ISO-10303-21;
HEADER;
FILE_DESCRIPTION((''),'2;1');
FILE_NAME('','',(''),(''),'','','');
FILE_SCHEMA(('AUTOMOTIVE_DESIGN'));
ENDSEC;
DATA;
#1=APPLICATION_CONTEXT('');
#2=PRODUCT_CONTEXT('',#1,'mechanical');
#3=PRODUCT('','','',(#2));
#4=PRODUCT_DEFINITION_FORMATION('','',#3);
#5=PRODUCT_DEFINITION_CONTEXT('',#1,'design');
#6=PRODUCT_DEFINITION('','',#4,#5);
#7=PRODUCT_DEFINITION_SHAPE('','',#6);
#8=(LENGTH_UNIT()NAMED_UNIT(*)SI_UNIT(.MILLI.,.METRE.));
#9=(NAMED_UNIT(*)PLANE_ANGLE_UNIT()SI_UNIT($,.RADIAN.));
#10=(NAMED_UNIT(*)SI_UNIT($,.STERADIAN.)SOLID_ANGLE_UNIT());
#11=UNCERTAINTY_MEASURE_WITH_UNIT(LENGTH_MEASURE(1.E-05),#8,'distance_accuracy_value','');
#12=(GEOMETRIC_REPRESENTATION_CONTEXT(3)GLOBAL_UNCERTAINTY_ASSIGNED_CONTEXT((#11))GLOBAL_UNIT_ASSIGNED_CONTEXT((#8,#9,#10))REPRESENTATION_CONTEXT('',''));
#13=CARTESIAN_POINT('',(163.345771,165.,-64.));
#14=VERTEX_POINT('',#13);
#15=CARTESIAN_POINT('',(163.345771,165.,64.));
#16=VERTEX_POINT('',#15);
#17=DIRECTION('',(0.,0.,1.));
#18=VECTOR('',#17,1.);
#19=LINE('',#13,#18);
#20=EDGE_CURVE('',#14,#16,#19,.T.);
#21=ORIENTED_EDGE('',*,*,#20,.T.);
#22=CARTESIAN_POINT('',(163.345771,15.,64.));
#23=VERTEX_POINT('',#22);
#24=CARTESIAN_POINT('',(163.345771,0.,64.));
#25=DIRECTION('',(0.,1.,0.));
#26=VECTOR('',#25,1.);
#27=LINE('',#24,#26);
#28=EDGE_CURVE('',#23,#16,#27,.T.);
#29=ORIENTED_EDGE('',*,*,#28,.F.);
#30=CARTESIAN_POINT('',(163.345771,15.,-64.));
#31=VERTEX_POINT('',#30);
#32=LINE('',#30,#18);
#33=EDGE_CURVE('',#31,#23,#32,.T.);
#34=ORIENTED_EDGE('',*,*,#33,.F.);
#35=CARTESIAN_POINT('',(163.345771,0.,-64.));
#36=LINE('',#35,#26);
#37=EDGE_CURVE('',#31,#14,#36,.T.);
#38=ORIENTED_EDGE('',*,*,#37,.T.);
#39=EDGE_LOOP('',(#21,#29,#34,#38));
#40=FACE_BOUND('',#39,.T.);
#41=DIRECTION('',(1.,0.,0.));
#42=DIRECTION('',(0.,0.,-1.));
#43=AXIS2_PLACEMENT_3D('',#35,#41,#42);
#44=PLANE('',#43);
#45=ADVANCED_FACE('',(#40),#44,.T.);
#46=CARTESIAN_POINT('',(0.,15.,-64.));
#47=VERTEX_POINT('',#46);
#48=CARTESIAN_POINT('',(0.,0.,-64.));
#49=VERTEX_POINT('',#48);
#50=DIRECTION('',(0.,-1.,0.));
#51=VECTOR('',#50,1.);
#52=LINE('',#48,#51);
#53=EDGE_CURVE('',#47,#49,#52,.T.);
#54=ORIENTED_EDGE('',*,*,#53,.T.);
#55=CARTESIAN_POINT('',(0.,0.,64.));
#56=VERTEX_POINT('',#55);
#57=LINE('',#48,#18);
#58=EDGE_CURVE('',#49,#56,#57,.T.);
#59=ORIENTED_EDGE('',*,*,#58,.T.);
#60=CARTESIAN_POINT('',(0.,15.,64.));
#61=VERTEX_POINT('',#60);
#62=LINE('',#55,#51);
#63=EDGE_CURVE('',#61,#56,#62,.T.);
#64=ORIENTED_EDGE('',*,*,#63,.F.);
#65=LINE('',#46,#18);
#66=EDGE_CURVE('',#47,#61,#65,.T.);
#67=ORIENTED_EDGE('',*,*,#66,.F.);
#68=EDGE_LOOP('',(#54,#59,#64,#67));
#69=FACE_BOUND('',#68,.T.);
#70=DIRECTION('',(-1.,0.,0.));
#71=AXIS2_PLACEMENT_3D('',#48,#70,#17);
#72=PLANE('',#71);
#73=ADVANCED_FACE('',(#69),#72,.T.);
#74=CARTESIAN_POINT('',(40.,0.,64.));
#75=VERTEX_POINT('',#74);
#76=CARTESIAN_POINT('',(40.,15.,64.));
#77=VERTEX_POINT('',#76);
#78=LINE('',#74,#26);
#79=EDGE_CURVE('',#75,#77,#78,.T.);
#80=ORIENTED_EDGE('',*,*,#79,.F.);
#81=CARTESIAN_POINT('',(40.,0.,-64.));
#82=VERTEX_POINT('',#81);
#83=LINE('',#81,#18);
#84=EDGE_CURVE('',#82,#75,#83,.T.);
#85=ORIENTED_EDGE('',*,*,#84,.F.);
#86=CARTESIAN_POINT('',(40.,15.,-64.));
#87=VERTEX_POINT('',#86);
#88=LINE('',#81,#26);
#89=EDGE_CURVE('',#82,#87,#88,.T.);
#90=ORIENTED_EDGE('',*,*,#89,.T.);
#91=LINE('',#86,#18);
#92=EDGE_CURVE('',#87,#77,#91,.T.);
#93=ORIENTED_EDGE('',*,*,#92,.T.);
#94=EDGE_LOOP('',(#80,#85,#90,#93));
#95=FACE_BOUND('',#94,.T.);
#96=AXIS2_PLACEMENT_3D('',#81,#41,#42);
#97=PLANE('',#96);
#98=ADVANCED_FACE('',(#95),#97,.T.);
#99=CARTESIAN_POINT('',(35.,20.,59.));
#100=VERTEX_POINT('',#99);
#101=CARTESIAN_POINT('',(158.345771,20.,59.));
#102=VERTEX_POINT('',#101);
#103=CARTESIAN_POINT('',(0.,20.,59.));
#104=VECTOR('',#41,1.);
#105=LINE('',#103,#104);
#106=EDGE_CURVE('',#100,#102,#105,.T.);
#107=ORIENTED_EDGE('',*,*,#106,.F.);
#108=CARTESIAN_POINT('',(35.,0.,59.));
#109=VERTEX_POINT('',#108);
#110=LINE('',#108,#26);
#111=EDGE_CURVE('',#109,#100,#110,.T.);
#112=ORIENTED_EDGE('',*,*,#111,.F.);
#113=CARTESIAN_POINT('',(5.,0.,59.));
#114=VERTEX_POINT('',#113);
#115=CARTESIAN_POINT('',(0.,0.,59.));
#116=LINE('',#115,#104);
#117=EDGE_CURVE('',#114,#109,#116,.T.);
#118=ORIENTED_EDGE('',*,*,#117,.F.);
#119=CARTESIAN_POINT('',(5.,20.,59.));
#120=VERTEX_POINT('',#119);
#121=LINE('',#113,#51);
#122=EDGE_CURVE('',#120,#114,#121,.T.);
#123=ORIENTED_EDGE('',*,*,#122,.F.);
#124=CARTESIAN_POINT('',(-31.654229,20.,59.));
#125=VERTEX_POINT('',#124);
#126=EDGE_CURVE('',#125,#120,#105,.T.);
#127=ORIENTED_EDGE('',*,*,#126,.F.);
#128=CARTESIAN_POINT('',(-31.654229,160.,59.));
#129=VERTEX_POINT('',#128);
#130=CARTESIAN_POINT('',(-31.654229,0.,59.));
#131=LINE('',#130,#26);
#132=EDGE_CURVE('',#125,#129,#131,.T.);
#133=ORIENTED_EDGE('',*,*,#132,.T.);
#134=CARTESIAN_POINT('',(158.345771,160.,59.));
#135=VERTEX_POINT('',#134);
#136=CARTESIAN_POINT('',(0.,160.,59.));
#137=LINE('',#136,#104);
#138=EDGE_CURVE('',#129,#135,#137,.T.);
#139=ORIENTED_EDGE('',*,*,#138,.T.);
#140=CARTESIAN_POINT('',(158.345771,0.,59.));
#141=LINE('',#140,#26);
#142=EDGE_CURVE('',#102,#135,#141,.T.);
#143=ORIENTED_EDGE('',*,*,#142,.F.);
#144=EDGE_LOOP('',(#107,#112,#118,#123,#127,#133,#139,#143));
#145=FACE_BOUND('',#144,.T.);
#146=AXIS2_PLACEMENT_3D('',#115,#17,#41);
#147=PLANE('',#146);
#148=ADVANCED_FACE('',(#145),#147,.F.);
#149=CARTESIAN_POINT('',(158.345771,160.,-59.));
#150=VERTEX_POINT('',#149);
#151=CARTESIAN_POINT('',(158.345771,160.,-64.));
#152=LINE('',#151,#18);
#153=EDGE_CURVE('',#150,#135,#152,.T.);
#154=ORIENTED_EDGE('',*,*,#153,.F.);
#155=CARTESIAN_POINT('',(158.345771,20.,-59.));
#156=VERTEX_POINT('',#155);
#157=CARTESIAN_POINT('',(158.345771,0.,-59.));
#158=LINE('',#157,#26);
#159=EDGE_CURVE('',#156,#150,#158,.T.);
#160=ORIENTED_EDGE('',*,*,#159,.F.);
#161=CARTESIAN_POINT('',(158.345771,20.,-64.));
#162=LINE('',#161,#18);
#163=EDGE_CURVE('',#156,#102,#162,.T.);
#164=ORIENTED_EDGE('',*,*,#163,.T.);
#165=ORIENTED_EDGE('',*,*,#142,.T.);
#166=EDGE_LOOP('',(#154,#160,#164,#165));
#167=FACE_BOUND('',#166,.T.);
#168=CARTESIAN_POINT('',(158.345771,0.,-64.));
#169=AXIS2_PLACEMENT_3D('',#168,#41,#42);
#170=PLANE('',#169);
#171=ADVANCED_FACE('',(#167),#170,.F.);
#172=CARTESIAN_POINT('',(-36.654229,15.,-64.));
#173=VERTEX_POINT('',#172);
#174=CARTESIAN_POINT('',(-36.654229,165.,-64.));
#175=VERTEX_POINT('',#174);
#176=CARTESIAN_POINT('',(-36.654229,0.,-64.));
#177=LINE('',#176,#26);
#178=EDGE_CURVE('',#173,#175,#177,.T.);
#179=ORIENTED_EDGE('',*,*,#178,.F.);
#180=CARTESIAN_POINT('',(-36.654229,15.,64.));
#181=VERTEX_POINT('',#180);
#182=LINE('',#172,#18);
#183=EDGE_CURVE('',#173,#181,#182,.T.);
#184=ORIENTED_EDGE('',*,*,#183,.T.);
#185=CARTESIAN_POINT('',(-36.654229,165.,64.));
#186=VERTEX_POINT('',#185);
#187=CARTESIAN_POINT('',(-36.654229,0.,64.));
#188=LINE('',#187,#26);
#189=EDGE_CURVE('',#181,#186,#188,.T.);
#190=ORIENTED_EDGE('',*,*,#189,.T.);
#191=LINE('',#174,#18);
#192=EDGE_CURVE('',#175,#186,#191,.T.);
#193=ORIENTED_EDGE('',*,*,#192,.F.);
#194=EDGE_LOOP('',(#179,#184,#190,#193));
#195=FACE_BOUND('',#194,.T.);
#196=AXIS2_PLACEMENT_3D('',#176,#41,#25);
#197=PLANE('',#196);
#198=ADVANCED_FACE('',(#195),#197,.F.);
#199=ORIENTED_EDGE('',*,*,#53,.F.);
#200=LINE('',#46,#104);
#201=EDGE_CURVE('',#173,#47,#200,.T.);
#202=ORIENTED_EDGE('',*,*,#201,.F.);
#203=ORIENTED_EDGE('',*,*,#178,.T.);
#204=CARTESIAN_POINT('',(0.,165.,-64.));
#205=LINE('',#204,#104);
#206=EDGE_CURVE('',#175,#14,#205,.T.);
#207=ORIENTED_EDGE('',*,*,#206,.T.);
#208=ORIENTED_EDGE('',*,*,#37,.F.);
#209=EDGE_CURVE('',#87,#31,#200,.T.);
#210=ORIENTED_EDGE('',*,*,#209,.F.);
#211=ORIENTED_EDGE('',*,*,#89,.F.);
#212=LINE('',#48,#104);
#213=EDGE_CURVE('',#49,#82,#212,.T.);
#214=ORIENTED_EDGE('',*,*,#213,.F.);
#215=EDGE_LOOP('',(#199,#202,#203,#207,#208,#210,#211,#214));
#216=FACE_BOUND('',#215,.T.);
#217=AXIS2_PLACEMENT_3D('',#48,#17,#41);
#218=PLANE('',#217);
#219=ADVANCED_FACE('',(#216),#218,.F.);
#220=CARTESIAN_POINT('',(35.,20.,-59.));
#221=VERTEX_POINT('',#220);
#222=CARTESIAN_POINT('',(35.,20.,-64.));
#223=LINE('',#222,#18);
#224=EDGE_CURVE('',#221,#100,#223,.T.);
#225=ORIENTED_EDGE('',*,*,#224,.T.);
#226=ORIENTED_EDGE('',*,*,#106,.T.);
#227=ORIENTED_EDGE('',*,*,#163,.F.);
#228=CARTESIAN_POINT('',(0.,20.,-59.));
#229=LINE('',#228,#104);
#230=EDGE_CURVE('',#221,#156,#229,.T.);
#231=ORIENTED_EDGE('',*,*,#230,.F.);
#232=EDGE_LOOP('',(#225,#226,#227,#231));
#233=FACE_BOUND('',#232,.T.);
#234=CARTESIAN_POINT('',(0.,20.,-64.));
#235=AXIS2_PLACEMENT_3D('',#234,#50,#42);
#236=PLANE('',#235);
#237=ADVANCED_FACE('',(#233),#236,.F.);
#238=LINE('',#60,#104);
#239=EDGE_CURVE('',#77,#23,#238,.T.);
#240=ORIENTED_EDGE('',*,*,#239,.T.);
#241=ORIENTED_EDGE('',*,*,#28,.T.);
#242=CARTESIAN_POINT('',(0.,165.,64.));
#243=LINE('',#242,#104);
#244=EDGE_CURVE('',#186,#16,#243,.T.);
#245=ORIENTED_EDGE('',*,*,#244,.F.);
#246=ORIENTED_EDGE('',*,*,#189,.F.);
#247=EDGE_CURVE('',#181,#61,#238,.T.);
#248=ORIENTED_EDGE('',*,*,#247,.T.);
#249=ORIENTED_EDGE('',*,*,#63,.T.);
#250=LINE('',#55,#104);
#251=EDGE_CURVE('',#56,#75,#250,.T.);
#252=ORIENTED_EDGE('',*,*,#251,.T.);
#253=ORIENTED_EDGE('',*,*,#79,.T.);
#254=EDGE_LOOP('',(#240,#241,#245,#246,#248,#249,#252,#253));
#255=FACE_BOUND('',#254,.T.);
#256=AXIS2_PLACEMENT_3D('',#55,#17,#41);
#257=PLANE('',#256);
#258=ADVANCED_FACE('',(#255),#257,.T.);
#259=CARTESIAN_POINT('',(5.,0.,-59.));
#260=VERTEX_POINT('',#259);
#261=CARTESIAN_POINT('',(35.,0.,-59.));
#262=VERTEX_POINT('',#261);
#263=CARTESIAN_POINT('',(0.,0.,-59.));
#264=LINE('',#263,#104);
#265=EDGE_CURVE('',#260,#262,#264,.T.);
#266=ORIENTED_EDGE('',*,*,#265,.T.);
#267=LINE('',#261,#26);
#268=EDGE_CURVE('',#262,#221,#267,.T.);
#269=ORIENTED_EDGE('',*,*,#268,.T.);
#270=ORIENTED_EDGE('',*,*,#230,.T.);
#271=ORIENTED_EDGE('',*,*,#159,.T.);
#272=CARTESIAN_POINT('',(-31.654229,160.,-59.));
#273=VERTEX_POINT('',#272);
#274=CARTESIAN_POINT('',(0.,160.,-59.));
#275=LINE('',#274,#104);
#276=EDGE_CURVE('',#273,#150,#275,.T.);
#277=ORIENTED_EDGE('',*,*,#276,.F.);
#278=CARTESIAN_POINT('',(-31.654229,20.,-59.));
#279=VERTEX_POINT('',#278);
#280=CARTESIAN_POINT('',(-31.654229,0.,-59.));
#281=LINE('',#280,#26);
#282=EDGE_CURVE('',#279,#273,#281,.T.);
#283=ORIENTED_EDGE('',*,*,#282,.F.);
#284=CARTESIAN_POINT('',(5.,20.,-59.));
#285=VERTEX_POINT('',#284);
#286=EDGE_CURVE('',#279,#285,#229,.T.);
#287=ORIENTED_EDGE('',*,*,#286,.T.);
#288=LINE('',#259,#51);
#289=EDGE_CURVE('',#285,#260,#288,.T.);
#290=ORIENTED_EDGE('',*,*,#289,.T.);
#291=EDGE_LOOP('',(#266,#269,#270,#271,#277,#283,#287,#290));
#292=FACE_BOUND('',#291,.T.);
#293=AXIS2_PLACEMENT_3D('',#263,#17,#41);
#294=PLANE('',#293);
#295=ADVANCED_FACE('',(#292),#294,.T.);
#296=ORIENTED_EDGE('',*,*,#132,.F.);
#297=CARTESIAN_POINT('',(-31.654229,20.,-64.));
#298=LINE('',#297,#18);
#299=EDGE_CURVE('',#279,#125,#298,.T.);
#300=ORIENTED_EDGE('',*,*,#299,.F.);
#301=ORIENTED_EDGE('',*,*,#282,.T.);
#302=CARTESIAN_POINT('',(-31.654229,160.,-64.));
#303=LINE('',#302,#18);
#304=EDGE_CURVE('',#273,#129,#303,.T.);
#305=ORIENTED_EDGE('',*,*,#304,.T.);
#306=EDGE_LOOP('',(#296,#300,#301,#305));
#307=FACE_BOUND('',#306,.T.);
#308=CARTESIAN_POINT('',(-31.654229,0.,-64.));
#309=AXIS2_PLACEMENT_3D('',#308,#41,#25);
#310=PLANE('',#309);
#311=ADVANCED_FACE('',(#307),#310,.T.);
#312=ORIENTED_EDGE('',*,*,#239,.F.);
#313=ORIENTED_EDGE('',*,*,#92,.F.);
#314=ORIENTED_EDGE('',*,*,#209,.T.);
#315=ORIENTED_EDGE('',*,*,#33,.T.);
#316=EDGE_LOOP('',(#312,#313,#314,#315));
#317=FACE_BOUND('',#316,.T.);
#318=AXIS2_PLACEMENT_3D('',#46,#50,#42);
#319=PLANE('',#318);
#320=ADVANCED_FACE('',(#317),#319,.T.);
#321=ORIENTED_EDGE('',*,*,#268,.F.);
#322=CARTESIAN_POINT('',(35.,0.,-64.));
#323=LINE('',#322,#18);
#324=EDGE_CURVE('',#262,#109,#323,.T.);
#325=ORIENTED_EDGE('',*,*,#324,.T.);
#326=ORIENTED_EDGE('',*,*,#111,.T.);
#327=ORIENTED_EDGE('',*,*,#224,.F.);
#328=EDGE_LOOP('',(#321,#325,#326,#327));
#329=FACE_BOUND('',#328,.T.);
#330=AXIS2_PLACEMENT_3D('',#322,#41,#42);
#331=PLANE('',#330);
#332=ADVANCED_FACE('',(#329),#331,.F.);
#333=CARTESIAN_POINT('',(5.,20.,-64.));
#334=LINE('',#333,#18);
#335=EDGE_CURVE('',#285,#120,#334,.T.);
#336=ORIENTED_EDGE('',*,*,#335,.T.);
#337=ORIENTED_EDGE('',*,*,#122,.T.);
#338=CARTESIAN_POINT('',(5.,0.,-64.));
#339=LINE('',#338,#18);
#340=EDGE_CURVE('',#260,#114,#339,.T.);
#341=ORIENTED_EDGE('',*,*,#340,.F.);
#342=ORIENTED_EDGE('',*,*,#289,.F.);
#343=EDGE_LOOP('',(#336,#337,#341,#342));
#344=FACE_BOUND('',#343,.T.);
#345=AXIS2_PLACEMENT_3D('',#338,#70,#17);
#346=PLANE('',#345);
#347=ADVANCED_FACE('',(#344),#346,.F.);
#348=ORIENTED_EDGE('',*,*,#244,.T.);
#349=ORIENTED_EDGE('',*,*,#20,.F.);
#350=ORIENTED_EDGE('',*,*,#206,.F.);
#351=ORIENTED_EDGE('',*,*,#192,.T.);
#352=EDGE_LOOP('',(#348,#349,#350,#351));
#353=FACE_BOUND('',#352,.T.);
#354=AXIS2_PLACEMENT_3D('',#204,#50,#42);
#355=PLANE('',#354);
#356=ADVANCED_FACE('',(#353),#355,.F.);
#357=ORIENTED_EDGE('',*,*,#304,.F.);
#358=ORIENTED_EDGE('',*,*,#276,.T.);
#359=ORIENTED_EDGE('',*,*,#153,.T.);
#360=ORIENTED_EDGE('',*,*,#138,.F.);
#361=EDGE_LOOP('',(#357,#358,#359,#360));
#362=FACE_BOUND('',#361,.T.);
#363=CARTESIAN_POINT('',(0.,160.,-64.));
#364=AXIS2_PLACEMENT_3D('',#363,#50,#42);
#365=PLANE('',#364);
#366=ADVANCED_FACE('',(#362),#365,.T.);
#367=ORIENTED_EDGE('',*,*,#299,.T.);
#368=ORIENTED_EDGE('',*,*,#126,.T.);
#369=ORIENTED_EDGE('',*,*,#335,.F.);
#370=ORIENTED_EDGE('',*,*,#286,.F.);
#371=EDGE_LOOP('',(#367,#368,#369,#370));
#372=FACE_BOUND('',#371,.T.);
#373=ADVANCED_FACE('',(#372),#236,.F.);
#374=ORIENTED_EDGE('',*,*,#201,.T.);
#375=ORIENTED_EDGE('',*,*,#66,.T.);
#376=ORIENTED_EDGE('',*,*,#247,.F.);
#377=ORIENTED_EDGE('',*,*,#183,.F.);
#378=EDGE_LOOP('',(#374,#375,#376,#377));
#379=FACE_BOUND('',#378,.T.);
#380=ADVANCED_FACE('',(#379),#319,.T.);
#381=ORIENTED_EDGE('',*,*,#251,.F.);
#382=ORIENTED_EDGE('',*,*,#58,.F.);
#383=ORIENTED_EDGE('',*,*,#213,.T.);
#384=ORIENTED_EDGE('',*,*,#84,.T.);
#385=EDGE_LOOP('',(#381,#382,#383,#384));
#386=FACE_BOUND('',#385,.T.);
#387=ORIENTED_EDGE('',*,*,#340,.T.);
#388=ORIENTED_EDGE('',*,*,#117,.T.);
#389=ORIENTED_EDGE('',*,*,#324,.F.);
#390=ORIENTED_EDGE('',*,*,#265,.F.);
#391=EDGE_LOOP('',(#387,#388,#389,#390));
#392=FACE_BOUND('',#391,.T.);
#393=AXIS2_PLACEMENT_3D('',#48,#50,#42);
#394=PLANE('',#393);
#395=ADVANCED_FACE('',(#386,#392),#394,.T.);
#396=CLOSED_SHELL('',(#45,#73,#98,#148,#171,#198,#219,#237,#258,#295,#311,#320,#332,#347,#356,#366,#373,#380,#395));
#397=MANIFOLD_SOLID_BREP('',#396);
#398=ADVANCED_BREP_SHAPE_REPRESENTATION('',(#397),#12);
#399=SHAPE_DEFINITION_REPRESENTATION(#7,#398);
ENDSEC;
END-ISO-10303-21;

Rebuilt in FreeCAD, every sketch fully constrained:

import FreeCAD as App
import Part
import Sketcher

V = App.Vector


def faces_at(feature, points):
    """Names of the faces that lie closest to the given points."""
    faces = feature.Shape.Faces
    near = lambda p: min(range(len(faces)), key=lambda i: faces[i].distToShape(Part.Vertex(*p))[0])
    return sorted({f"Face{near(p) + 1}" for p in points})


def add_polygon(sketch, points):
    """Adds a closed chain of lines whose ends are joined by coincident constraints."""
    first, n = sketch.GeometryCount, len(points)
    for a, b in zip(points, points[1:] + points[:1]):
        sketch.addGeometry(Part.LineSegment(App.Vector(*a, 0), App.Vector(*b, 0)), False)
    for i in range(n):
        sketch.addConstraint(Sketcher.Constraint("Coincident", first + i, 2, first + (i + 1) % n, 1))

doc = App.newDocument("Part")
body = doc.addObject("PartDesign::Body", "Body")

# Sketch on XY plane
sketch1 = doc.addObject("Sketcher::SketchObject", "Sketch")
body.addObject(sketch1)
sketch1.AttachmentSupport = (doc.XY_Plane, [""])
sketch1.MapMode = "FlatFace"
add_polygon(sketch1, [(-37, 165), (-37, 15), (0, 15), (0, 0), (40, 0), (40, 15), (163, 15), (163, 165)])  # lines 0-7
sketch1.addConstraint([
    Sketcher.Constraint("Vertical", 0),
    Sketcher.Constraint("Horizontal", 1),
    Sketcher.Constraint("Vertical", 2),
    Sketcher.Constraint("Horizontal", 3),
    Sketcher.Constraint("Vertical", 4),
    Sketcher.Constraint("Horizontal", 5),
    Sketcher.Constraint("Vertical", 6),
    Sketcher.Constraint("Horizontal", 7),
    Sketcher.Constraint("Coincident", 2, 2, -1, 1),
    Sketcher.Constraint("Horizontal", 1, 2, 4, 2),
    Sketcher.Constraint("DistanceX", 3, 1, 3, 2, 40.0),
    Sketcher.Constraint("DistanceX", 7, 2, 7, 1, 200.0),
    Sketcher.Constraint("DistanceY", 0, 2, 0, 1, 150.0),
    Sketcher.Constraint("DistanceY", 2, 2, 2, 1, 15.0),
    Sketcher.Constraint("DistanceX", 1, 1, 1, 2, 36.654229),
])
pad1 = doc.addObject("PartDesign::Pad", "Pad")
body.addObject(pad1)
pad1.Profile = sketch1
pad1.Type = "TwoLengths"
pad1.Length = 64
pad1.Length2 = 64
doc.recompute()

thickness = doc.addObject("PartDesign::Thickness", "Thickness")
body.addObject(thickness)
thickness.Base = (pad1, faces_at(pad1, [(20, 0, 0)]))
thickness.Value = 5
thickness.Reversed = True
thickness.Join = "Intersection"

doc.recompute()
